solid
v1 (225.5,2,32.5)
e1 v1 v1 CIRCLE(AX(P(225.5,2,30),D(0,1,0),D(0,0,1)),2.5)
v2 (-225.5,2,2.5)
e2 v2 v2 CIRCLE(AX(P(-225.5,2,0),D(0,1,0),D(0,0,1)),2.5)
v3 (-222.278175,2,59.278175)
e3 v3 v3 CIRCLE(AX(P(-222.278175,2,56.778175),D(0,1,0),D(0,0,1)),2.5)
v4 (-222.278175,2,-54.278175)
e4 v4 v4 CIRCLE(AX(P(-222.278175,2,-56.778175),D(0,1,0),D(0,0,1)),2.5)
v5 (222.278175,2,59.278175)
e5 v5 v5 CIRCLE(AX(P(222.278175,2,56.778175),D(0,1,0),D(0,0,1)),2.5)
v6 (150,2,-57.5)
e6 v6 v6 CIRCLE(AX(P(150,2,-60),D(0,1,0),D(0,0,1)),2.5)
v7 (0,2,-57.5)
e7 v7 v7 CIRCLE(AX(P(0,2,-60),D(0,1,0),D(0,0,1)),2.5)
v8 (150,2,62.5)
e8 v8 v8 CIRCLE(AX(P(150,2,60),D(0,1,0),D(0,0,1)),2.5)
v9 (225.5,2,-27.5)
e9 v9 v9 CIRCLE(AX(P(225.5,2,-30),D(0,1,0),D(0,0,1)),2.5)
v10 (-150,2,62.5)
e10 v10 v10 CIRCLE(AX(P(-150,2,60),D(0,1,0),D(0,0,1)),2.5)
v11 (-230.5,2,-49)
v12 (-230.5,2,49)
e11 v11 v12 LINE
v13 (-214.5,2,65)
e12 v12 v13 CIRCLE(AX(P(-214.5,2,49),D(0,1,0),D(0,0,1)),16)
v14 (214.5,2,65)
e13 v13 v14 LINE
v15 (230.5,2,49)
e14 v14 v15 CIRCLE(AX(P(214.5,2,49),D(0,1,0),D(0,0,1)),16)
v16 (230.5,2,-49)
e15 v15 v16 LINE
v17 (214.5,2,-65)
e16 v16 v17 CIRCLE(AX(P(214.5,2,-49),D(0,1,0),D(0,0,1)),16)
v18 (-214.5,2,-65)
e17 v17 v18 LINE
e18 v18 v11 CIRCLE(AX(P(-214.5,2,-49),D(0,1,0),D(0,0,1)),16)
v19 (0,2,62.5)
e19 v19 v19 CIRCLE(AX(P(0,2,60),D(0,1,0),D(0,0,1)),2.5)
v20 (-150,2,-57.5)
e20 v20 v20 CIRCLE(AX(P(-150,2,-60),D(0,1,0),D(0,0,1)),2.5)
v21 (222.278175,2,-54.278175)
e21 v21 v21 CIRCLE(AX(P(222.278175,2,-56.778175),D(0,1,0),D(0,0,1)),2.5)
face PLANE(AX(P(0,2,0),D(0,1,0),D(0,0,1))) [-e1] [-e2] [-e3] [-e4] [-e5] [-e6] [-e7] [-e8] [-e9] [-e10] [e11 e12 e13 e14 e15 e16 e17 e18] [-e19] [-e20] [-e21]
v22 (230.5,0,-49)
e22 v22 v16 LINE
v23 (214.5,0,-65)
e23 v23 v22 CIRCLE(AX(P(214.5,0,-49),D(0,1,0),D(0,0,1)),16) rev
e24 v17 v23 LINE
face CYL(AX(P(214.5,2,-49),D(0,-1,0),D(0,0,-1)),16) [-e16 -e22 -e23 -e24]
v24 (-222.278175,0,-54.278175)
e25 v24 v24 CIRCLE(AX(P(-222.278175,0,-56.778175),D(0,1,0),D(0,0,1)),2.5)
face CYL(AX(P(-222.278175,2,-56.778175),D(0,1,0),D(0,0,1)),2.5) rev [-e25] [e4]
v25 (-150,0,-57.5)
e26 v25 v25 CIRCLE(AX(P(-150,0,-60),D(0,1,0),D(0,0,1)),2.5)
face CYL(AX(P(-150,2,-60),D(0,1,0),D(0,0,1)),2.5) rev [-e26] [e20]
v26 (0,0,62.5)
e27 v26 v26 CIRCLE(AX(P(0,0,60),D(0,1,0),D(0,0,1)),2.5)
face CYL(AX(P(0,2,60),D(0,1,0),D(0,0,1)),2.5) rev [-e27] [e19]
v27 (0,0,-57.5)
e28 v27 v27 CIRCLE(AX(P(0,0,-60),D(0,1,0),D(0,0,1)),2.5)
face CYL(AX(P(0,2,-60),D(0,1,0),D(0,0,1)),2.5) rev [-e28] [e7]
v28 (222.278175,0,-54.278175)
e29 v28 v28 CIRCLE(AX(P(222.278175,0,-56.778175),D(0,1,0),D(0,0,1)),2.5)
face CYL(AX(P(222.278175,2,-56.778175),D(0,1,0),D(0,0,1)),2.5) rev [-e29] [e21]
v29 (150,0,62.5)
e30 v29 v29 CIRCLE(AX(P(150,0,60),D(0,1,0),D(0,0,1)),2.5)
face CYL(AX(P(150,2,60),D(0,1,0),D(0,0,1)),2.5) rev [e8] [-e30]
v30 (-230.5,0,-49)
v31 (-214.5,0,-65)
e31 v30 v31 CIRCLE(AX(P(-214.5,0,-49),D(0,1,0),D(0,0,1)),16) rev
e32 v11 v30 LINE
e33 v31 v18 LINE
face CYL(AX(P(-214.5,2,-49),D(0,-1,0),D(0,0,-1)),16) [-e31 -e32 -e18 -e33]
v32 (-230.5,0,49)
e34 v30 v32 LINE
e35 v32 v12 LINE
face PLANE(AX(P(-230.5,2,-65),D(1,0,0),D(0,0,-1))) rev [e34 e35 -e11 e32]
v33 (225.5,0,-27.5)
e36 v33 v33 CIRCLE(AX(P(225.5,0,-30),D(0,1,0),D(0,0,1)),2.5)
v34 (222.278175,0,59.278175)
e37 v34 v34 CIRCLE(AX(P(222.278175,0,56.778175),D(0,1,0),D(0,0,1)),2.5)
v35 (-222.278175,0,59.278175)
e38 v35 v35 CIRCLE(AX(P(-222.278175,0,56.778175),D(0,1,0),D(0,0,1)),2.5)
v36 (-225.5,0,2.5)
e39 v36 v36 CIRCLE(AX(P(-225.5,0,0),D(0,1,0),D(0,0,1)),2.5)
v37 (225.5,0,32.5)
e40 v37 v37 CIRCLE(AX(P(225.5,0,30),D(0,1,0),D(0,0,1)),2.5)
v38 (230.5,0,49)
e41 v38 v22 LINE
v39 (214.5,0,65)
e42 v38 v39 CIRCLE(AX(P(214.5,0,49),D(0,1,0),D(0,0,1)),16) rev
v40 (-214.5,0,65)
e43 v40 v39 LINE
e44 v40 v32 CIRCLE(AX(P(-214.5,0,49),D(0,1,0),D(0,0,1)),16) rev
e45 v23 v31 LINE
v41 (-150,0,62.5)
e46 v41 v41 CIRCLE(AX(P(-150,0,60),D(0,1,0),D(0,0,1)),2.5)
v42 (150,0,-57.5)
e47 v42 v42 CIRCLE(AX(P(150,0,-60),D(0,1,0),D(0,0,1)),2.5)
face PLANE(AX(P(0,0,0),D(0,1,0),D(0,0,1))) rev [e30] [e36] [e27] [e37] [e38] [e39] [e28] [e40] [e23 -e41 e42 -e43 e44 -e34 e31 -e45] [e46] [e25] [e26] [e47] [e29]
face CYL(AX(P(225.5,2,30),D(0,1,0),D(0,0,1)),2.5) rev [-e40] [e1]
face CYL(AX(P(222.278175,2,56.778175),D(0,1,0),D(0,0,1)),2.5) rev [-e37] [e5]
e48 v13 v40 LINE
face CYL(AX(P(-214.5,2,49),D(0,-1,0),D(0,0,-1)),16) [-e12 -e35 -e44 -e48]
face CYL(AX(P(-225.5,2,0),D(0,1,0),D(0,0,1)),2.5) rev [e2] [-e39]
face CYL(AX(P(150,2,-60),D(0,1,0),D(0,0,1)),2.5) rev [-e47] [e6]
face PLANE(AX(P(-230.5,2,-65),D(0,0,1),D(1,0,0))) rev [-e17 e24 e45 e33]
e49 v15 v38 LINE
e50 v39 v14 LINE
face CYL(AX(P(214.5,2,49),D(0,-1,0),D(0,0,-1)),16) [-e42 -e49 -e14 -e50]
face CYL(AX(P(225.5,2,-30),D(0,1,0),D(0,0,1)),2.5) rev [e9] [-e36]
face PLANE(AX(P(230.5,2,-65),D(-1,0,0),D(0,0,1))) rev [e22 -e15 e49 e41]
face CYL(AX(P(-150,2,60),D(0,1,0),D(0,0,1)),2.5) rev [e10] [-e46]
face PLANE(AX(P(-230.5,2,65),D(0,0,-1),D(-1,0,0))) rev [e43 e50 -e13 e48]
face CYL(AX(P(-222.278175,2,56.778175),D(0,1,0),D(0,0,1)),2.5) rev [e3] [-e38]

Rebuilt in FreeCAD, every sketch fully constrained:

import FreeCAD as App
import Part
import Sketcher
from FreeCAD import Vector
Q = App.Units.Quantity


def edges_at(feature, points):
    """Names of the edges that pass closest to the given points."""
    edges = feature.Shape.Edges
    near = lambda p: min(range(len(edges)), key=lambda i: edges[i].distToShape(Part.Vertex(*p))[0])
    return sorted({f"Edge{near(p) + 1}" for p in points})


def add_polygon(sketch, points):
    """Adds a closed chain of lines whose ends are joined by coincident constraints."""
    first, n = sketch.GeometryCount, len(points)
    for a, b in zip(points, points[1:] + points[:1]):
        sketch.addGeometry(Part.LineSegment(App.Vector(*a, 0), App.Vector(*b, 0)), False)
    for i in range(n):
        sketch.addConstraint(Sketcher.Constraint("Coincident", first + i, 2, first + (i + 1) % n, 1))

doc = App.newDocument("Part")
body = doc.addObject("PartDesign::Body", "Body")

sketch1 = body.newObject("Sketcher::SketchObject", "Sketch")
sketch1.AttachmentSupport = (doc.getObject("XZ_Plane"), [""])
sketch1.MapMode = "FlatFace"
add_polygon(sketch1, [(-230.5, -65), (-230.5, 65), (230.5, 65), (230.5, -65)])
sketch1.addConstraint(Sketcher.Constraint("Vertical", 0))
sketch1.addConstraint(Sketcher.Constraint("Horizontal", 1))
sketch1.addConstraint(Sketcher.Constraint("Vertical", 2))
sketch1.addConstraint(Sketcher.Constraint("Horizontal", 3))
sketch1.addConstraint(Sketcher.Constraint("Symmetric", 0, 2, 2, 2, -1, 1))
sketch1.addConstraint(Sketcher.Constraint("DistanceX", 1, 1, 1, 2, Q("461 mm")))
sketch1.addConstraint(Sketcher.Constraint("DistanceY", 0, 1, 0, 2, Q("130 mm")))
pad1 = body.newObject("PartDesign::Pad", "Pad")
pad1.Profile = sketch1
pad1.Length = 2
pad1.Reversed = True
doc.recompute()

fillet = body.newObject("PartDesign::Fillet", "Fillet")
fillet.Base = (pad1, edges_at(pad1, [
    (230.5, 1, 65),
    (-230.5, 1, 65),
    (-230.5, 1, -65),
    (230.5, 1, -65),
]))
fillet.Radius = 16

sketch2 = body.newObject("Sketcher::SketchObject", "Sketch001")
sketch2.AttachmentSupport = (doc.getObject("XZ_Plane"), [""])
sketch2.MapMode = "FlatFace"
sketch2.AttachmentOffset = App.Placement(Vector(0, 0, -2), App.Rotation())
sketch2.addGeometry(Part.Circle(Vector(-222.278175, -56.778175, 0), Vector(0, 0, 1), 2.5), False)
sketch2.addGeometry(Part.Circle(Vector(-150, -60, 0), Vector(0, 0, 1), 2.5), False)
sketch2.addGeometry(Part.Circle(Vector(-225.5, 0, 0), Vector(0, 0, 1), 2.5), False)
sketch2.addGeometry(Part.Circle(Vector(-222.278175, 56.778175, 0), Vector(0, 0, 1), 2.5), False)
sketch2.addGeometry(Part.Circle(Vector(-150, 60, 0), Vector(0, 0, 1), 2.5), False)
sketch2.addGeometry(Part.Circle(Vector(0, -60, 0), Vector(0, 0, 1), 2.5), False)
sketch2.addGeometry(Part.Circle(Vector(0, 60, 0), Vector(0, 0, 1), 2.5), False)
sketch2.addGeometry(Part.Circle(Vector(150, 60, 0), Vector(0, 0, 1), 2.5), False)
sketch2.addGeometry(Part.Circle(Vector(150, -60, 0), Vector(0, 0, 1), 2.5), False)
sketch2.addGeometry(Part.Circle(Vector(222.278175, -56.778175, 0), Vector(0, 0, 1), 2.5), False)
sketch2.addGeometry(Part.Circle(Vector(222.278175, 56.778175, 0), Vector(0, 0, 1), 2.5), False)
sketch2.addGeometry(Part.Circle(Vector(225.5, -30, 0), Vector(0, 0, 1), 2.5), False)
sketch2.addGeometry(Part.Circle(Vector(225.5, 30, 0), Vector(0, 0, 1), 2.5), False)
sketch2.addConstraint(Sketcher.Constraint("Equal", 0, 1))
sketch2.addConstraint(Sketcher.Constraint("Equal", 1, 2))
sketch2.addConstraint(Sketcher.Constraint("Equal", 2, 3))
sketch2.addConstraint(Sketcher.Constraint("Equal", 3, 4))
sketch2.addConstraint(Sketcher.Constraint("Equal", 4, 5))
sketch2.addConstraint(Sketcher.Constraint("Equal", 5, 6))
sketch2.addConstraint(Sketcher.Constraint("Equal", 6, 7))
sketch2.addConstraint(Sketcher.Constraint("Equal", 7, 8))
sketch2.addConstraint(Sketcher.Constraint("Equal", 8, 9))
sketch2.addConstraint(Sketcher.Constraint("Equal", 9, 10))
sketch2.addConstraint(Sketcher.Constraint("Equal", 10, 11))
sketch2.addConstraint(Sketcher.Constraint("Equal", 11, 12))
sketch2.addConstraint(Sketcher.Constraint("Symmetric", 5, 3, 6, 3, -1, 1))
sketch2.addConstraint(Sketcher.Constraint("Symmetric", 1, 3, 7, 3, -1, 1))
sketch2.addConstraint(Sketcher.Constraint("Symmetric", 4, 3, 8, 3, -1, 1))
sketch2.addConstraint(Sketcher.Constraint("Symmetric", 3, 3, 9, 3, -1, 1))
sketch2.addConstraint(Sketcher.Constraint("Symmetric", 0, 3, 10, 3, -1, 1))
sketch2.addConstraint(Sketcher.Constraint("Symmetric", 4, 3, 7, 3, -2))
sketch2.addConstraint(Sketcher.Constraint("Symmetric", 0, 3, 9, 3, -2))
sketch2.addConstraint(Sketcher.Constraint("Symmetric", 11, 3, 12, 3, -1))
sketch2.addConstraint(Sketcher.Constraint("PointOnObject", 2, 3, -1))
sketch2.addConstraint(Sketcher.Constraint("PointOnObject", 5, 3, -2))
sketch2.addConstraint(Sketcher.Constraint("Horizontal", 1, 3, 5, 3))
sketch2.addConstraint(Sketcher.Constraint("Diameter", 0, Q("5 mm")))
sketch2.addConstraint(Sketcher.Constraint("DistanceX", 1, 3, -1, 1, Q("150 mm")))
sketch2.addConstraint(Sketcher.Constraint("DistanceY", 1, 3, -1, 1, Q("60 mm")))
sketch2.addConstraint(Sketcher.Constraint("DistanceY", 11, 3, -1, 1, Q("30 mm")))
sketch2.addConstraint(Sketcher.Constraint("DistanceX", 2, 3, -1, 1, Q("225.5 mm")))
sketch2.addConstraint(Sketcher.Constraint("DistanceX", -1, 1, 11, 3, Q("225.5 mm")))
sketch2.addConstraint(Sketcher.Constraint("DistanceY", 0, 3, 3, 3, Q("113.556349 mm")))
sketch2.addConstraint(Sketcher.Constraint("DistanceX", 0, 3, -1, 1, Q("222.278175 mm")))
doc.recompute()
hole = body.newObject("PartDesign::Hole", "Hole")
hole.Profile = sketch2
hole.ThreadType = "None"
hole.Diameter = 5
hole.DepthType = "ThroughAll"
hole.Reversed = True

doc.recompute()
